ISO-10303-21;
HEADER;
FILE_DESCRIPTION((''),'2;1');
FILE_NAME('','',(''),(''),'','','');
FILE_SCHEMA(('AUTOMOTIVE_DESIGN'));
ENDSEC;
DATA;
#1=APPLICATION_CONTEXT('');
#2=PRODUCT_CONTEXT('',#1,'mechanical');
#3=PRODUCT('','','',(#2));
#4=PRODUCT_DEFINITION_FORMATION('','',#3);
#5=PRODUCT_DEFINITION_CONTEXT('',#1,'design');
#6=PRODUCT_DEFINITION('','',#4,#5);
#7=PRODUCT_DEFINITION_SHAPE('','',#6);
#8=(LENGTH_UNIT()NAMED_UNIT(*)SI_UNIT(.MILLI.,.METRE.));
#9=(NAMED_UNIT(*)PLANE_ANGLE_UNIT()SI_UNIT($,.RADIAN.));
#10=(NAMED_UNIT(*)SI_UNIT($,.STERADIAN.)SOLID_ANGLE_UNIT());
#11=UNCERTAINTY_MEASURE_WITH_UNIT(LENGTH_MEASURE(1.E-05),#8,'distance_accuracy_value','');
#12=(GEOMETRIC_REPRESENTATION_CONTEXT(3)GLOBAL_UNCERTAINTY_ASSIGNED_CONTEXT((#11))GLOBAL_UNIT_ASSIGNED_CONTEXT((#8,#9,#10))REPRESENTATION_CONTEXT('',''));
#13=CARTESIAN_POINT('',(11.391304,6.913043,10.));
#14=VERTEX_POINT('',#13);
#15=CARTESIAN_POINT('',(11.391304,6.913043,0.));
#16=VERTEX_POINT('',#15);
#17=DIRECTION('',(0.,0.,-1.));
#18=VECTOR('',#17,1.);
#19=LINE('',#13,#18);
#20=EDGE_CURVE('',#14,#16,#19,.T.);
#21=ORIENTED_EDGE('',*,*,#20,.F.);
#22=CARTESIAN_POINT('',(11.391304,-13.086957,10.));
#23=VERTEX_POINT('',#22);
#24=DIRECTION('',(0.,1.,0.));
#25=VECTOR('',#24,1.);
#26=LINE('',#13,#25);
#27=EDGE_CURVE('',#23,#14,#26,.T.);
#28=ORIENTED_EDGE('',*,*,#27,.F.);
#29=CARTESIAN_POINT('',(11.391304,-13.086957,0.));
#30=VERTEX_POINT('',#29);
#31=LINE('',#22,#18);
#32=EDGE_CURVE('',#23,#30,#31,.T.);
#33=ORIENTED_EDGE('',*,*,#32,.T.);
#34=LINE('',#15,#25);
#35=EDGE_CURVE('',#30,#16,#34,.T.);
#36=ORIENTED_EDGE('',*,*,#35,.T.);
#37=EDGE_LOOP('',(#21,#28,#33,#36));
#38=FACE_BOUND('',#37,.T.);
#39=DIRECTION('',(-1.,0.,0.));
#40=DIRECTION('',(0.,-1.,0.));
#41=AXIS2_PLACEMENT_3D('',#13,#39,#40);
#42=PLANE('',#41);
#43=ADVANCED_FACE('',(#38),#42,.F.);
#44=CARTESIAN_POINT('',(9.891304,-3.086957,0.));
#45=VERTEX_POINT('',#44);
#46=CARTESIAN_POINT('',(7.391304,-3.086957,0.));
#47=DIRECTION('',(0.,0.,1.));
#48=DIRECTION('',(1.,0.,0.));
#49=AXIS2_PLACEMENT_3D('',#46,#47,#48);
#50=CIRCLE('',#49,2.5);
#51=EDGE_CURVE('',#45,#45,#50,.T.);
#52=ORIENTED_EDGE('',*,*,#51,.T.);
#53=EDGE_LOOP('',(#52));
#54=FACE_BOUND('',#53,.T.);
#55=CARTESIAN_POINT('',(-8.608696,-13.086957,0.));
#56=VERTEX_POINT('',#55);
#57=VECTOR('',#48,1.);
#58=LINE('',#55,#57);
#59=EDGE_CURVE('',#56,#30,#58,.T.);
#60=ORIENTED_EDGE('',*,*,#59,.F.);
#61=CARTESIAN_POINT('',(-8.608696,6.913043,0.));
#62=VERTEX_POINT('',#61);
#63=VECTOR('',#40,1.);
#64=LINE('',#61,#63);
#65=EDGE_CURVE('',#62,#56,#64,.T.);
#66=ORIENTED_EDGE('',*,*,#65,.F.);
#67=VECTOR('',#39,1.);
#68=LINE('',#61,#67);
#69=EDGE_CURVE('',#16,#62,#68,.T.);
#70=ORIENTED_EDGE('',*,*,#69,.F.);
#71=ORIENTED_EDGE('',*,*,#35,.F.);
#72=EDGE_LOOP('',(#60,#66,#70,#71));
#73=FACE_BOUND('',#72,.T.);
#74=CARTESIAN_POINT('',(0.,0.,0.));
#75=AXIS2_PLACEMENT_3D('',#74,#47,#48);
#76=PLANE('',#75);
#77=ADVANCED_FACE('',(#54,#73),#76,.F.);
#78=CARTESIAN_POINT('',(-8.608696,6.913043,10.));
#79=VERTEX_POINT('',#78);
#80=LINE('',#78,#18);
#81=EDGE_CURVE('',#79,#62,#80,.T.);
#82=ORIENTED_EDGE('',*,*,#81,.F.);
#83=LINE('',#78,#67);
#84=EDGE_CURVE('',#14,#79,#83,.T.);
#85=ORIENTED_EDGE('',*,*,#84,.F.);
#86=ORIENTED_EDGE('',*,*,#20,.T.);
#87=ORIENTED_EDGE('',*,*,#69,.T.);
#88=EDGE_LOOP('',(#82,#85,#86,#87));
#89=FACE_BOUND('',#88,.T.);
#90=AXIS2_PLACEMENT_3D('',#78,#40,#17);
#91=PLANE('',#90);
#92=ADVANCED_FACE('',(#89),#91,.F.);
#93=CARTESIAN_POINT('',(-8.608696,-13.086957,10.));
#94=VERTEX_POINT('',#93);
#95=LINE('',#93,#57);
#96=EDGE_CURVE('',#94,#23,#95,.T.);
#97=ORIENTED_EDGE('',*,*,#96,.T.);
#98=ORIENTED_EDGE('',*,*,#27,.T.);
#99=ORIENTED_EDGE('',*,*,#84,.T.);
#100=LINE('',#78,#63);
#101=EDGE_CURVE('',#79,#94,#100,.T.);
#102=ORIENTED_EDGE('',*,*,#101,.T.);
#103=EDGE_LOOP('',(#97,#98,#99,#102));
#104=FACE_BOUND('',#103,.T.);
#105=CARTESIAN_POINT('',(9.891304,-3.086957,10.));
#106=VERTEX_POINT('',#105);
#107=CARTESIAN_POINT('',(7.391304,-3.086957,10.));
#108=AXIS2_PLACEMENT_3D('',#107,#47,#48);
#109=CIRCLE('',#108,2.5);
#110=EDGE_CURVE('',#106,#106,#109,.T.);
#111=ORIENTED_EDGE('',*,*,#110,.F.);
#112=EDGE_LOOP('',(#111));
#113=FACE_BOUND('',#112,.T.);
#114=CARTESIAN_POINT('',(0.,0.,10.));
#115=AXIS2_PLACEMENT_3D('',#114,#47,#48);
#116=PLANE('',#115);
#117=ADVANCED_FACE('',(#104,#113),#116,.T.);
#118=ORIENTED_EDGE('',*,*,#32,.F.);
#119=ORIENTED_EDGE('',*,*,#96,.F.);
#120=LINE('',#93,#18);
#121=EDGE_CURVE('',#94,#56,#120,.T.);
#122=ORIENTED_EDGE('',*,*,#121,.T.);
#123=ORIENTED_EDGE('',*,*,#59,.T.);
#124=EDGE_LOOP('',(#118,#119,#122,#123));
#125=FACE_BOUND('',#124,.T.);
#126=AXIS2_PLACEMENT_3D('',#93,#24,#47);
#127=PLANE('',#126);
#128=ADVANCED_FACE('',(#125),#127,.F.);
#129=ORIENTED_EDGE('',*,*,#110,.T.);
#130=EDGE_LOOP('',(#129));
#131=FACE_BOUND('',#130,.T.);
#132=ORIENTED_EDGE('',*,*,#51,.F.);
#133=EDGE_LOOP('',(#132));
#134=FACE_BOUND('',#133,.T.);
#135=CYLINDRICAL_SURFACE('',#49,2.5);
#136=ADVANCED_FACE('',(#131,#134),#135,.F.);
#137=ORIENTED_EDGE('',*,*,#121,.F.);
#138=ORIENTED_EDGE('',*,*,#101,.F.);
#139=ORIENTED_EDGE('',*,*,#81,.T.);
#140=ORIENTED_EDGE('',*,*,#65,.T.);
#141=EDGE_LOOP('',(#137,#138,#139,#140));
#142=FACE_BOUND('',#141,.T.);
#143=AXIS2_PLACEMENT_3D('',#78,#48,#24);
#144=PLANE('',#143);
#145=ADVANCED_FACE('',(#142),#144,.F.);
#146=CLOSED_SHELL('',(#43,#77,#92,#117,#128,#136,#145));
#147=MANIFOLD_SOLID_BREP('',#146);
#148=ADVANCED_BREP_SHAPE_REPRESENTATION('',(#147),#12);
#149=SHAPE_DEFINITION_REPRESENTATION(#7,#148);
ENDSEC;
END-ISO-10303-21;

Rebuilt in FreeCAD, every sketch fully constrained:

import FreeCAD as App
import Part
import Sketcher
Q = App.Units.Quantity

doc = App.newDocument("Part")
params = doc.addObject("Spreadsheet::Sheet", "Params")
for row, (alias, value) in enumerate([
    ("sketch1_width", "20 mm"),
    ("pad1_length", "10 mm"),
    ("sketch2_diameter", "5 mm"),
    ("pocket1_length", "10 mm"),
], start=1):
    params.set(f"A{row}", alias)
    params.set(f"B{row}", "=" + value)
    params.setAlias(f"B{row}", alias)

body = doc.addObject("PartDesign::Body", "Body")

sketch1 = body.newObject("Sketcher::SketchObject", "Sketch")
sketch1.AttachmentSupport = (doc.getObject("XY_Plane"), [""])
sketch1.MapMode = "FlatFace"
sketch1.addGeometry([
    Part.LineSegment(App.Vector(-9, 7, 0), App.Vector(-9, -13, 0)),
    Part.LineSegment(App.Vector(-9, -13, 0), App.Vector(11, -13, 0)),
    Part.LineSegment(App.Vector(11, -13, 0), App.Vector(11, 7, 0)),
    Part.LineSegment(App.Vector(11, 7, 0), App.Vector(-9, 7, 0)),
], False)
sketch1.addConstraint([
    Sketcher.Constraint("Coincident", 0, 2, 1, 1),
    Sketcher.Constraint("Coincident", 1, 2, 2, 1),
    Sketcher.Constraint("Coincident", 2, 2, 3, 1),
    Sketcher.Constraint("Coincident", 3, 2, 0, 1),
    Sketcher.Constraint("Vertical", 0),
    Sketcher.Constraint("Horizontal", 1),
    Sketcher.Constraint("Vertical", 2),
    Sketcher.Constraint("Horizontal", 3),
    Sketcher.Constraint("Equal", 3, 0),
    Sketcher.Constraint("DistanceX", 1, 1, 1, 2, Q("20 mm")),
    Sketcher.Constraint("DistanceX", 0, 2, -1, 1, Q("8.608696 mm")),
    Sketcher.Constraint("DistanceY", 0, 2, -1, 1, Q("13.086957 mm")),
])
sketch1.setExpression("Constraints[9]", "Params.sketch1_width")
pad1 = body.newObject("PartDesign::Pad", "Pad")
pad1.Profile = sketch1
pad1.setExpression("Length", "Params.pad1_length")

sketch2 = body.newObject("Sketcher::SketchObject", "Sketch001")
sketch2.AttachmentSupport = (doc.getObject("XY_Plane"), [""])
sketch2.MapMode = "FlatFace"
sketch2.AttachmentOffset = App.Placement(App.Vector(0, 0, 10), App.Rotation())
sketch2.addGeometry(Part.Circle(App.Vector(7.4, -3.1, 0), App.Vector(0, 0, 1), 2.5), False)
sketch2.addConstraint([
    Sketcher.Constraint("Diameter", 0, Q("5 mm")),
    Sketcher.Constraint("DistanceX", -1, 1, 0, 3, Q("7.391304 mm")),
    Sketcher.Constraint("DistanceY", 0, 3, -1, 1, Q("3.086957 mm")),
])
sketch2.setExpression("Constraints[0]", "Params.sketch2_diameter")
pocket1 = body.newObject("PartDesign::Pocket", "Pocket")
pocket1.Profile = sketch2
pocket1.setExpression("Length", "Params.pocket1_length")

doc.recompute()
